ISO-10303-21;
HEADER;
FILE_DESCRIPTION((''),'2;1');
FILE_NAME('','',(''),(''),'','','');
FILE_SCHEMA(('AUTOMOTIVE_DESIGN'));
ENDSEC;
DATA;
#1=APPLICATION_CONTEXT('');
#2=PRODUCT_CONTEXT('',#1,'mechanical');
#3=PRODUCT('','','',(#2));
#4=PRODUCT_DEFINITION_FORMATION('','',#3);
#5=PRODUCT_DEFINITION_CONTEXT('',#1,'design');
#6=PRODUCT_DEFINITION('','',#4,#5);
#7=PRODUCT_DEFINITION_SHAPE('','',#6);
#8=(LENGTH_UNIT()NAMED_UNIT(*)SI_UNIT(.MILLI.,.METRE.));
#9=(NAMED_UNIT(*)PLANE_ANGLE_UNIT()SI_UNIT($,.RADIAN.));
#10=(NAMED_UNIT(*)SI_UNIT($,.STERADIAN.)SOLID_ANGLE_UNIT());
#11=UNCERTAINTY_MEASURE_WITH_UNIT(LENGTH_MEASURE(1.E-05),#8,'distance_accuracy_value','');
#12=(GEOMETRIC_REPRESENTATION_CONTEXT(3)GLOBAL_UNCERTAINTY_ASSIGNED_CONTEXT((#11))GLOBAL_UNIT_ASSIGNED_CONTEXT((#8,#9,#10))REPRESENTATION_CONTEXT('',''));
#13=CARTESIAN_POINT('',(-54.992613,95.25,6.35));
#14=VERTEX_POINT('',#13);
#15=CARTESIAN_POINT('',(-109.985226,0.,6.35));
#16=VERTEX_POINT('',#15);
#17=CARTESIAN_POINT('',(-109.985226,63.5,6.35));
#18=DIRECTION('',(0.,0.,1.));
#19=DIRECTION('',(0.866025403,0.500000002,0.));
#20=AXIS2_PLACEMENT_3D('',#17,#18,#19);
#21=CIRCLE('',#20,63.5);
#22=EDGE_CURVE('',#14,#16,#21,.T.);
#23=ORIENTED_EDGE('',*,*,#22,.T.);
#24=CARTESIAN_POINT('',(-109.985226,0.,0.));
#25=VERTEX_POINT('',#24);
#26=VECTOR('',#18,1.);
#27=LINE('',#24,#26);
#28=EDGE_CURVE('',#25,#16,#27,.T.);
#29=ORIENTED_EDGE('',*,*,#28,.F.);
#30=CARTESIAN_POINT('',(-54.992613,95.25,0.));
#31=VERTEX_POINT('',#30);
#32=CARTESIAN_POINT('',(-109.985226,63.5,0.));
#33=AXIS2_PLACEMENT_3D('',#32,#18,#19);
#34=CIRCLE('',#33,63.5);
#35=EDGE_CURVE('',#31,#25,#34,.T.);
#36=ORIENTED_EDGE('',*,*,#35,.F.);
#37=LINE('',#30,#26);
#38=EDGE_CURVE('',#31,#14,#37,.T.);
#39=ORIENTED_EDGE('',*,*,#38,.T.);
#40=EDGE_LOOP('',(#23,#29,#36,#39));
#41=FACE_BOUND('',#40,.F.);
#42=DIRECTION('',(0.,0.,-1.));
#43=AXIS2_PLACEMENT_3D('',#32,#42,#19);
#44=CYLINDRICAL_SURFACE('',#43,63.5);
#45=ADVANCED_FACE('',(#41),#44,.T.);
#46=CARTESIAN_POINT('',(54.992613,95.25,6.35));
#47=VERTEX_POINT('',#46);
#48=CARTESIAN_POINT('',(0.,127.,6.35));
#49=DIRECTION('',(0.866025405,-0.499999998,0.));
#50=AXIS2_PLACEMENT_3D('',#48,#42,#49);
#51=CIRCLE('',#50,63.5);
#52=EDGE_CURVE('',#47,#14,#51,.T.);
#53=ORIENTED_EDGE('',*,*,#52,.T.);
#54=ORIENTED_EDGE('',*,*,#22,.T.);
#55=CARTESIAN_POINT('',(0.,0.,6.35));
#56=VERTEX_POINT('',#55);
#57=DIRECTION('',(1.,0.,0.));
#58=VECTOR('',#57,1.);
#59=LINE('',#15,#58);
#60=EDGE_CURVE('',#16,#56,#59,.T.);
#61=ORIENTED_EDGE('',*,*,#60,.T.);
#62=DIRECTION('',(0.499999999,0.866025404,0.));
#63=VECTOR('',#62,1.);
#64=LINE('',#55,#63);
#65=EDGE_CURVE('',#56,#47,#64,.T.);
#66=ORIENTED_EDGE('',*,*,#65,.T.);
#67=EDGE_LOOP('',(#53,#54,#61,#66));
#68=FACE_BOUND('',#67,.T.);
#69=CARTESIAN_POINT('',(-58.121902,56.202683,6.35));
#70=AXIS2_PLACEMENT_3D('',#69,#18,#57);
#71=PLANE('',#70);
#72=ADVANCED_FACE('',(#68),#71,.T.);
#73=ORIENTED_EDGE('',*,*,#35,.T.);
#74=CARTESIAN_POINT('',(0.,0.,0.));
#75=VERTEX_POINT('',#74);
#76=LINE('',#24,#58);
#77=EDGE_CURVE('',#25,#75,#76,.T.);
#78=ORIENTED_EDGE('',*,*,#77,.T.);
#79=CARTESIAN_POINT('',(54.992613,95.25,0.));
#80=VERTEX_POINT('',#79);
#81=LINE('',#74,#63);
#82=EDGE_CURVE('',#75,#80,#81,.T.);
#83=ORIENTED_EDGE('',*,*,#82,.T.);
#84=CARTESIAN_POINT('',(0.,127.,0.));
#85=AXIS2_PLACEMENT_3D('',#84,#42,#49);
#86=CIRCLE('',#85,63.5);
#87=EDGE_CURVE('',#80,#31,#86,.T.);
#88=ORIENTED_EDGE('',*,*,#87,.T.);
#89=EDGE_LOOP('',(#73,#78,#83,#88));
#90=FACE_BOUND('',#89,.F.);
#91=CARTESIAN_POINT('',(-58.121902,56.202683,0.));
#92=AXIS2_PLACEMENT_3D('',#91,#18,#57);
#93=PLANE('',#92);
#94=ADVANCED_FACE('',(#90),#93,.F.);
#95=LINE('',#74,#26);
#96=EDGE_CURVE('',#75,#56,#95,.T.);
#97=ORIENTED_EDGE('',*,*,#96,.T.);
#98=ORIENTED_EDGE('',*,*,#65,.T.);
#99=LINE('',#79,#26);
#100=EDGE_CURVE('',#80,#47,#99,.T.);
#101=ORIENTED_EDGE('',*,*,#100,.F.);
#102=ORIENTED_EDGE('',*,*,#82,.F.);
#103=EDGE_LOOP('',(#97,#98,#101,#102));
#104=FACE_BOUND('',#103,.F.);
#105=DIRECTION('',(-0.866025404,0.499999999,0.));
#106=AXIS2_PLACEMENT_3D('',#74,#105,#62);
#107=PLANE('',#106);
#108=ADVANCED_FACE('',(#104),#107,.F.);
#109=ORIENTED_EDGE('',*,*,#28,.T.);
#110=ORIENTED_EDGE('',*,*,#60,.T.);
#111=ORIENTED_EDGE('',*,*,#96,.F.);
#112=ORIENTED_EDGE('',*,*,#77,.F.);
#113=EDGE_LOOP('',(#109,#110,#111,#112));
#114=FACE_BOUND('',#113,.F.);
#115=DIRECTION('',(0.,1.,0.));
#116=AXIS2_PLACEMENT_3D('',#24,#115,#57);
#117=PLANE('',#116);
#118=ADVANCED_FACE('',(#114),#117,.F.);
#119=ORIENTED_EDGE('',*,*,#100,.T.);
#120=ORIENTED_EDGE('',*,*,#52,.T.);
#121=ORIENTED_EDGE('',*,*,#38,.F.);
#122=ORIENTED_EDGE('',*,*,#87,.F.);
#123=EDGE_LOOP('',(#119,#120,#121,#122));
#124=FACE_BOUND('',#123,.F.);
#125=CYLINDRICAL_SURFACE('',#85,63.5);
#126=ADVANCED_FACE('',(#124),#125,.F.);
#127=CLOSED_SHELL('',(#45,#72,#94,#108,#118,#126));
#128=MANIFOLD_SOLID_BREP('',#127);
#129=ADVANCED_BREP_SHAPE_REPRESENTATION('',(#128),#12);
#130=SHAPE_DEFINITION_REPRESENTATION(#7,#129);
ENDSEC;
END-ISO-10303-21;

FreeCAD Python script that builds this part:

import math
import FreeCAD as App
import Part
import Sketcher
from FreeCAD import Vector
Q = App.Units.Quantity

doc = App.newDocument("Part")
body = doc.addObject("PartDesign::Body", "Body")

sketch1 = body.newObject("Sketcher::SketchObject", "Sketch")
sketch1.AttachmentSupport = (doc.getObject("XY_Plane"), [""])
sketch1.MapMode = "FlatFace"
sketch1.addGeometry(Part.ArcOfCircle(Part.Circle(Vector(0, 127, 0), Vector(0, 0, 1), 63), math.radians(-150), math.radians(-30)), False)
sketch1.addGeometry(Part.ArcOfCircle(Part.Circle(Vector(-110, 63, 0), Vector(0, 0, 1), 63), math.radians(30), math.radians(270)), False)
sketch1.addGeometry(Part.LineSegment(Vector(-110, 0, 0), Vector(0, 0, 0)), False)
sketch1.addGeometry(Part.LineSegment(Vector(0, 0, 0), Vector(55, 95, 0)), False)
sketch1.addConstraint(Sketcher.Constraint("Tangent", 0, 1, 1, 1))
sketch1.addConstraint(Sketcher.Constraint("Tangent", 1, 2, 2, 1))
sketch1.addConstraint(Sketcher.Constraint("Coincident", 2, 2, 3, 1))
sketch1.addConstraint(Sketcher.Constraint("Tangent", 3, 2, 0, 2))
sketch1.addConstraint(Sketcher.Constraint("Horizontal", 2))
sketch1.addConstraint(Sketcher.Constraint("Coincident", 2, 2, -1, 1))
sketch1.addConstraint(Sketcher.Constraint("Equal", 0, 1))
sketch1.addConstraint(Sketcher.Constraint("Symmetric", 0, 1, 3, 2, -2))
sketch1.addConstraint(Sketcher.Constraint("Radius", 0, Q("2.5 in")))
pad1 = body.newObject("PartDesign::Pad", "Pad")
pad1.Profile = sketch1
pad1.Length = Q("0.25 in")

doc.recompute()
